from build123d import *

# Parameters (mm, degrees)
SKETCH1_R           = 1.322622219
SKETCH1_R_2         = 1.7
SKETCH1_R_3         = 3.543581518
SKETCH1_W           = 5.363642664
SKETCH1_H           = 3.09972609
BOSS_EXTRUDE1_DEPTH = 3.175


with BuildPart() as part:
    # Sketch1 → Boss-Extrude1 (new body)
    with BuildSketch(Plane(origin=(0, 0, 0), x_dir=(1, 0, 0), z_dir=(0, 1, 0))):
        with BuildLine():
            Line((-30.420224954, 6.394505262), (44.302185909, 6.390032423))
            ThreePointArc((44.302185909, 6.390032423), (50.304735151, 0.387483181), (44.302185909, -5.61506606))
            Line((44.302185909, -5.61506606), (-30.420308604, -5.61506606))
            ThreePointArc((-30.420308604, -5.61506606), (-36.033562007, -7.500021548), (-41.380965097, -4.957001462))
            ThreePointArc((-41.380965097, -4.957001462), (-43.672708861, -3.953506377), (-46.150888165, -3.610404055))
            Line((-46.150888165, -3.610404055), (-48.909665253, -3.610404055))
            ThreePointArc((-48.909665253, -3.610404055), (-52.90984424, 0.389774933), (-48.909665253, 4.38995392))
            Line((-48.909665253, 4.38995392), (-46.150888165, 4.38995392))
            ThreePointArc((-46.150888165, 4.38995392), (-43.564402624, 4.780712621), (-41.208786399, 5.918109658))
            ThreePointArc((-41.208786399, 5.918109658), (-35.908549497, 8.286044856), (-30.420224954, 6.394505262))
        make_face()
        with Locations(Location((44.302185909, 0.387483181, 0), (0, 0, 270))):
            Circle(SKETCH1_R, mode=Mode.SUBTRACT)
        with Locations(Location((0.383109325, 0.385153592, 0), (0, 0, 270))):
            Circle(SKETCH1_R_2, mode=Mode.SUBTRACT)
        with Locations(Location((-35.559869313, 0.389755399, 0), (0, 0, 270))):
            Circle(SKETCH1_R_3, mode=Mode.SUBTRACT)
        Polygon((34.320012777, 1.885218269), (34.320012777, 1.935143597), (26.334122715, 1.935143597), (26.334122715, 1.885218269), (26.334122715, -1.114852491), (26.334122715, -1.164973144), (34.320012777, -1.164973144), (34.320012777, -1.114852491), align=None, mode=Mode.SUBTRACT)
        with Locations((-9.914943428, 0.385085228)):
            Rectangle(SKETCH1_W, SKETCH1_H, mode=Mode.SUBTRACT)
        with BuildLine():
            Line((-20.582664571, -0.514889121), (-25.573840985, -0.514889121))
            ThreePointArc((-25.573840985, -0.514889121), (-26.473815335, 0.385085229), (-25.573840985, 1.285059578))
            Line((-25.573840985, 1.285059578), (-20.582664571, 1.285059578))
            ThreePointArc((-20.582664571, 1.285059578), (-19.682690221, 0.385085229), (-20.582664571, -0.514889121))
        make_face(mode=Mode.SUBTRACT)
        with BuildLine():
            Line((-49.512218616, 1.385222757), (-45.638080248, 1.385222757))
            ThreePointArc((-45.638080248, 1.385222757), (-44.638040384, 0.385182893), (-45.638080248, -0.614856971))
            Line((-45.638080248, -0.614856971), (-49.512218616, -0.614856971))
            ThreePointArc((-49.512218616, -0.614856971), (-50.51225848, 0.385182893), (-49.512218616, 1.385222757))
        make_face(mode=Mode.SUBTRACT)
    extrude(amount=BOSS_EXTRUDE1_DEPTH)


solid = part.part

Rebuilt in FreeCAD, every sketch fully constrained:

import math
import FreeCAD as App
import Part
import Sketcher
Q = App.Units.Quantity

doc = App.newDocument("Part")
params = doc.addObject("Spreadsheet::Sheet", "Params")
for row, (alias, value) in enumerate([
    ("sketch1_diameter", "3.4 mm"),
    ("pad1_length", "3.175 mm"),
], start=1):
    params.set(f"A{row}", alias)
    params.set(f"B{row}", "=" + value)
    params.setAlias(f"B{row}", alias)

body = doc.addObject("PartDesign::Body", "Body")

# Sketch on XZ plane
sketch1 = body.newObject("Sketcher::SketchObject", "Sketch")
sketch1.AttachmentSupport = (doc.getObject("XZ_Plane"), [""])
sketch1.MapMode = "FlatFace"
sketch1.addGeometry([
    Part.LineSegment(App.Vector(44.302186, -6.390032, 0), App.Vector(-30.420225, -6.394505, 0)),  # 0
    Part.ArcOfCircle(Part.Circle(App.Vector(-35.559869, -0.389755, 0), App.Vector(0, 0, 1), 7.903984), math.radians(-135.617993), math.radians(-49.438796)),  # 1
    Part.ArcOfCircle(Part.Circle(App.Vector(-46.150888, -13.145485, 0), App.Vector(0, 0, 1), 8.755531), math.radians(55.635558), math.radians(90)),  # 2
    Part.LineSegment(App.Vector(-46.150888, -4.389954, 0), App.Vector(-48.909665, -4.389954, 0)),  # 3
    Part.ArcOfCircle(Part.Circle(App.Vector(-48.909665, -0.389775, 0), App.Vector(0, 0, 1), 4.000179), math.radians(90), math.radians(270)),  # 4
    Part.LineSegment(App.Vector(-48.909665, 3.610404, 0), App.Vector(-46.150888, 3.610404, 0)),  # 5
    Part.ArcOfCircle(Part.Circle(App.Vector(-46.150888, 12.731724, 0), App.Vector(0, 0, 1), 9.12132), math.radians(-90), math.radians(-58.470183)),  # 6
    Part.ArcOfCircle(Part.Circle(App.Vector(-35.559869, -0.389755, 0), App.Vector(0, 0, 1), 7.903984), math.radians(49.439594), math.radians(137.432096)),  # 7
    Part.LineSegment(App.Vector(-30.420309, 5.615066, 0), App.Vector(44.302186, 5.615066, 0)),  # 8
    Part.ArcOfCircle(Part.Circle(App.Vector(44.302186, -0.387483, 0), App.Vector(0, 0, 1), 6.002549), math.radians(-90), math.radians(90)),  # 9
    Part.Circle(App.Vector(44.302186, -0.387483, 0), App.Vector(0, 0, 1), 1.322622),  # 10
    Part.LineSegment(App.Vector(34.320013, 1.164973, 0), App.Vector(26.334123, 1.164973, 0)),  # 11
    Part.LineSegment(App.Vector(26.334123, 1.164973, 0), App.Vector(26.334123, -1.935144, 0)),  # 12
    Part.LineSegment(App.Vector(26.334123, -1.935144, 0), App.Vector(34.320013, -1.935144, 0)),  # 13
    Part.LineSegment(App.Vector(34.320013, -1.935144, 0), App.Vector(34.320013, 1.164973, 0)),  # 14
    Part.Circle(App.Vector(0.383109, -0.385154, 0), App.Vector(0, 0, 1), 1.7),  # 15
    Part.LineSegment(App.Vector(-12.596765, 1.164778, 0), App.Vector(-12.596765, -1.934948, 0)),  # 16
    Part.LineSegment(App.Vector(-12.596765, -1.934948, 0), App.Vector(-7.233122, -1.934948, 0)),  # 17
    Part.LineSegment(App.Vector(-7.233122, -1.934948, 0), App.Vector(-7.233122, 1.164778, 0)),  # 18
    Part.LineSegment(App.Vector(-7.233122, 1.164778, 0), App.Vector(-12.596765, 1.164778, 0)),  # 19
    Part.LineSegment(App.Vector(-20.582665, 0.514889, 0), App.Vector(-25.573841, 0.514889, 0)),  # 20
    Part.ArcOfCircle(Part.Circle(App.Vector(-25.573841, -0.385085, 0), App.Vector(0, 0, 1), 0.899974), math.radians(90), math.radians(270)),  # 21
    Part.LineSegment(App.Vector(-25.573841, -1.28506, 0), App.Vector(-20.582665, -1.28506, 0)),  # 22
    Part.ArcOfCircle(Part.Circle(App.Vector(-20.582665, -0.385085, 0), App.Vector(0, 0, 1), 0.899974), math.radians(-90), math.radians(90)),  # 23
    Part.LineSegment(App.Vector(-49.512219, -1.385223, 0), App.Vector(-45.63808, -1.385223, 0)),  # 24
    Part.ArcOfCircle(Part.Circle(App.Vector(-45.63808, -0.385183, 0), App.Vector(0, 0, 1), 1.00004), math.radians(-90), math.radians(90)),  # 25
    Part.LineSegment(App.Vector(-45.63808, 0.614857, 0), App.Vector(-49.512219, 0.614857, 0)),  # 26
    Part.ArcOfCircle(Part.Circle(App.Vector(-49.512219, -0.385183, 0), App.Vector(0, 0, 1), 1.00004), math.radians(90), math.radians(270)),  # 27
    Part.Circle(App.Vector(-35.559869, -0.389755, 0), App.Vector(0, 0, 1), 3.543582),  # 28
], False)
sketch1.addConstraint([
    Sketcher.Constraint("Coincident", 0, 2, 1, 2),
    Sketcher.Constraint("Coincident", 1, 1, 2, 1),
    Sketcher.Constraint("Tangent", 2, 2, 3, 1),
    Sketcher.Constraint("Tangent", 3, 2, 4, 2),
    Sketcher.Constraint("Tangent", 4, 1, 5, 1),
    Sketcher.Constraint("Tangent", 5, 2, 6, 1),
    Sketcher.Constraint("Coincident", 6, 2, 7, 2),
    Sketcher.Constraint("Coincident", 7, 1, 8, 1),
    Sketcher.Constraint("Tangent", 8, 2, 9, 2),
    Sketcher.Constraint("Coincident", 9, 1, 0, 1),
    Sketcher.Constraint("Coincident", 11, 2, 12, 1),
    Sketcher.Constraint("Coincident", 12, 2, 13, 1),
    Sketcher.Constraint("Coincident", 13, 2, 14, 1),
    Sketcher.Constraint("Coincident", 14, 2, 11, 1),
    Sketcher.Constraint("Coincident", 16, 2, 17, 1),
    Sketcher.Constraint("Coincident", 17, 2, 18, 1),
    Sketcher.Constraint("Coincident", 18, 2, 19, 1),
    Sketcher.Constraint("Coincident", 19, 2, 16, 1),
    Sketcher.Constraint("Tangent", 20, 2, 21, 1),
    Sketcher.Constraint("Tangent", 21, 2, 22, 1),
    Sketcher.Constraint("Tangent", 22, 2, 23, 1),
    Sketcher.Constraint("Tangent", 23, 2, 20, 1),
    Sketcher.Constraint("Tangent", 24, 2, 25, 1),
    Sketcher.Constraint("Tangent", 25, 2, 26, 1),
    Sketcher.Constraint("Tangent", 26, 2, 27, 1),
    Sketcher.Constraint("Tangent", 27, 2, 24, 1),
    Sketcher.Constraint("Horizontal", 3),
    Sketcher.Constraint("Horizontal", 5),
    Sketcher.Constraint("Horizontal", 8),
    Sketcher.Constraint("Horizontal", 11),
    Sketcher.Constraint("Vertical", 12),
    Sketcher.Constraint("Horizontal", 13),
    Sketcher.Constraint("Vertical", 14),
    Sketcher.Constraint("Vertical", 16),
    Sketcher.Constraint("Horizontal", 17),
    Sketcher.Constraint("Vertical", 18),
    Sketcher.Constraint("Horizontal", 19),
    Sketcher.Constraint("Horizontal", 20),
    Sketcher.Constraint("Horizontal", 22),
    Sketcher.Constraint("Horizontal", 24),
    Sketcher.Constraint("Horizontal", 26),
    Sketcher.Constraint("Coincident", 7, 3, 1, 3),
    Sketcher.Constraint("Coincident", 10, 3, 9, 3),
    Sketcher.Constraint("Coincident", 28, 3, 1, 3),
    Sketcher.Constraint("Equal", 1, 7),
    Sketcher.Constraint("Vertical", 2, 3, 6, 3),
    Sketcher.Constraint("Vertical", 8, 2, 9, 1),
    Sketcher.Constraint("Diameter", 15, Q("3.4 mm")),
    Sketcher.Constraint("Radius", 2, Q("8.755531 mm")),
    Sketcher.Constraint("Radius", 4, Q("4.000179 mm")),
    Sketcher.Constraint("Radius", 6, Q("9.12132 mm")),
    Sketcher.Constraint("Radius", 9, Q("6.002549 mm")),
    Sketcher.Constraint("Radius", 25, Q("1.00004 mm")),
    Sketcher.Constraint("Diameter", 10, Q("2.645244 mm")),
    Sketcher.Constraint("Diameter", 28, Q("7.087163 mm")),
    Sketcher.Constraint("DistanceY", -1, 1, 6, 2, Q("4.957001 mm")),
    Sketcher.Constraint("Radius", 1, Q("7.903984 mm")),
    Sketcher.Constraint("Radius", 21, Q("0.899974 mm")),
    Sketcher.Constraint("DistanceY", 2, 3, 9, 3, Q("12.758002 mm")),
    Sketcher.Constraint("DistanceX", 4, 3, 23, 3, Q("28.327001 mm")),
    Sketcher.Constraint("DistanceX", 11, 2, 11, 1, Q("7.98589 mm")),
    Sketcher.Constraint("DistanceX", 24, 1, 24, 2, Q("3.874138 mm")),
    Sketcher.Constraint("DistanceY", 1, 3, 15, 3, Q("0.004602 mm")),
    Sketcher.Constraint("DistanceY", 2, 3, 21, 3, Q("12.7604 mm")),
    Sketcher.Constraint("DistanceX", 2, 3, 1, 1, Q("4.942102 mm")),
    Sketcher.Constraint("DistanceX", 4, 1, 6, 2, Q("7.5287 mm")),
    Sketcher.Constraint("DistanceX", 23, 3, 16, 2, Q("7.9859 mm")),
    Sketcher.Constraint("Distance", 0, Q("74.722411 mm")),
    Sketcher.Constraint("DistanceX", 3, 2, 3, 1, Q("2.758777 mm")),
    Sketcher.Constraint("DistanceX", 8, 1, 8, 2, Q("74.722495 mm")),
    Sketcher.Constraint("DistanceX", 17, 1, 17, 2, Q("5.363643 mm")),
    Sketcher.Constraint("DistanceX", 20, 2, 20, 1, Q("4.991176 mm")),
    Sketcher.Constraint("DistanceY", 12, 2, 12, 1, Q("3.100117 mm")),
    Sketcher.Constraint("DistanceY", 16, 2, 16, 1, Q("3.099726 mm")),
    Sketcher.Constraint("DistanceX", 1, 3, -1, 1, Q("35.559869 mm")),
    Sketcher.Constraint("DistanceX", -1, 1, 15, 3, Q("0.383109 mm")),
    Sketcher.Constraint("DistanceX", 25, 3, -1, 1, Q("45.63808 mm")),
    Sketcher.Constraint("DistanceY", 16, 2, -1, 1, Q("1.934948 mm")),
    Sketcher.Constraint("DistanceY", 2, 2, 25, 3, Q("4.004771 mm")),
    Sketcher.Constraint("DistanceY", 12, 2, 10, 3, Q("1.54766 mm")),
    Sketcher.Constraint("DistanceX", -1, 1, 11, 2, Q("26.334123 mm")),
])
sketch1.setExpression("Constraints[47]", "Params.sketch1_diameter")
pad1 = body.newObject("PartDesign::Pad", "Pad")
pad1.Profile = sketch1
pad1.setExpression("Length", "Params.pad1_length")
pad1.Reversed = True

doc.recompute()
